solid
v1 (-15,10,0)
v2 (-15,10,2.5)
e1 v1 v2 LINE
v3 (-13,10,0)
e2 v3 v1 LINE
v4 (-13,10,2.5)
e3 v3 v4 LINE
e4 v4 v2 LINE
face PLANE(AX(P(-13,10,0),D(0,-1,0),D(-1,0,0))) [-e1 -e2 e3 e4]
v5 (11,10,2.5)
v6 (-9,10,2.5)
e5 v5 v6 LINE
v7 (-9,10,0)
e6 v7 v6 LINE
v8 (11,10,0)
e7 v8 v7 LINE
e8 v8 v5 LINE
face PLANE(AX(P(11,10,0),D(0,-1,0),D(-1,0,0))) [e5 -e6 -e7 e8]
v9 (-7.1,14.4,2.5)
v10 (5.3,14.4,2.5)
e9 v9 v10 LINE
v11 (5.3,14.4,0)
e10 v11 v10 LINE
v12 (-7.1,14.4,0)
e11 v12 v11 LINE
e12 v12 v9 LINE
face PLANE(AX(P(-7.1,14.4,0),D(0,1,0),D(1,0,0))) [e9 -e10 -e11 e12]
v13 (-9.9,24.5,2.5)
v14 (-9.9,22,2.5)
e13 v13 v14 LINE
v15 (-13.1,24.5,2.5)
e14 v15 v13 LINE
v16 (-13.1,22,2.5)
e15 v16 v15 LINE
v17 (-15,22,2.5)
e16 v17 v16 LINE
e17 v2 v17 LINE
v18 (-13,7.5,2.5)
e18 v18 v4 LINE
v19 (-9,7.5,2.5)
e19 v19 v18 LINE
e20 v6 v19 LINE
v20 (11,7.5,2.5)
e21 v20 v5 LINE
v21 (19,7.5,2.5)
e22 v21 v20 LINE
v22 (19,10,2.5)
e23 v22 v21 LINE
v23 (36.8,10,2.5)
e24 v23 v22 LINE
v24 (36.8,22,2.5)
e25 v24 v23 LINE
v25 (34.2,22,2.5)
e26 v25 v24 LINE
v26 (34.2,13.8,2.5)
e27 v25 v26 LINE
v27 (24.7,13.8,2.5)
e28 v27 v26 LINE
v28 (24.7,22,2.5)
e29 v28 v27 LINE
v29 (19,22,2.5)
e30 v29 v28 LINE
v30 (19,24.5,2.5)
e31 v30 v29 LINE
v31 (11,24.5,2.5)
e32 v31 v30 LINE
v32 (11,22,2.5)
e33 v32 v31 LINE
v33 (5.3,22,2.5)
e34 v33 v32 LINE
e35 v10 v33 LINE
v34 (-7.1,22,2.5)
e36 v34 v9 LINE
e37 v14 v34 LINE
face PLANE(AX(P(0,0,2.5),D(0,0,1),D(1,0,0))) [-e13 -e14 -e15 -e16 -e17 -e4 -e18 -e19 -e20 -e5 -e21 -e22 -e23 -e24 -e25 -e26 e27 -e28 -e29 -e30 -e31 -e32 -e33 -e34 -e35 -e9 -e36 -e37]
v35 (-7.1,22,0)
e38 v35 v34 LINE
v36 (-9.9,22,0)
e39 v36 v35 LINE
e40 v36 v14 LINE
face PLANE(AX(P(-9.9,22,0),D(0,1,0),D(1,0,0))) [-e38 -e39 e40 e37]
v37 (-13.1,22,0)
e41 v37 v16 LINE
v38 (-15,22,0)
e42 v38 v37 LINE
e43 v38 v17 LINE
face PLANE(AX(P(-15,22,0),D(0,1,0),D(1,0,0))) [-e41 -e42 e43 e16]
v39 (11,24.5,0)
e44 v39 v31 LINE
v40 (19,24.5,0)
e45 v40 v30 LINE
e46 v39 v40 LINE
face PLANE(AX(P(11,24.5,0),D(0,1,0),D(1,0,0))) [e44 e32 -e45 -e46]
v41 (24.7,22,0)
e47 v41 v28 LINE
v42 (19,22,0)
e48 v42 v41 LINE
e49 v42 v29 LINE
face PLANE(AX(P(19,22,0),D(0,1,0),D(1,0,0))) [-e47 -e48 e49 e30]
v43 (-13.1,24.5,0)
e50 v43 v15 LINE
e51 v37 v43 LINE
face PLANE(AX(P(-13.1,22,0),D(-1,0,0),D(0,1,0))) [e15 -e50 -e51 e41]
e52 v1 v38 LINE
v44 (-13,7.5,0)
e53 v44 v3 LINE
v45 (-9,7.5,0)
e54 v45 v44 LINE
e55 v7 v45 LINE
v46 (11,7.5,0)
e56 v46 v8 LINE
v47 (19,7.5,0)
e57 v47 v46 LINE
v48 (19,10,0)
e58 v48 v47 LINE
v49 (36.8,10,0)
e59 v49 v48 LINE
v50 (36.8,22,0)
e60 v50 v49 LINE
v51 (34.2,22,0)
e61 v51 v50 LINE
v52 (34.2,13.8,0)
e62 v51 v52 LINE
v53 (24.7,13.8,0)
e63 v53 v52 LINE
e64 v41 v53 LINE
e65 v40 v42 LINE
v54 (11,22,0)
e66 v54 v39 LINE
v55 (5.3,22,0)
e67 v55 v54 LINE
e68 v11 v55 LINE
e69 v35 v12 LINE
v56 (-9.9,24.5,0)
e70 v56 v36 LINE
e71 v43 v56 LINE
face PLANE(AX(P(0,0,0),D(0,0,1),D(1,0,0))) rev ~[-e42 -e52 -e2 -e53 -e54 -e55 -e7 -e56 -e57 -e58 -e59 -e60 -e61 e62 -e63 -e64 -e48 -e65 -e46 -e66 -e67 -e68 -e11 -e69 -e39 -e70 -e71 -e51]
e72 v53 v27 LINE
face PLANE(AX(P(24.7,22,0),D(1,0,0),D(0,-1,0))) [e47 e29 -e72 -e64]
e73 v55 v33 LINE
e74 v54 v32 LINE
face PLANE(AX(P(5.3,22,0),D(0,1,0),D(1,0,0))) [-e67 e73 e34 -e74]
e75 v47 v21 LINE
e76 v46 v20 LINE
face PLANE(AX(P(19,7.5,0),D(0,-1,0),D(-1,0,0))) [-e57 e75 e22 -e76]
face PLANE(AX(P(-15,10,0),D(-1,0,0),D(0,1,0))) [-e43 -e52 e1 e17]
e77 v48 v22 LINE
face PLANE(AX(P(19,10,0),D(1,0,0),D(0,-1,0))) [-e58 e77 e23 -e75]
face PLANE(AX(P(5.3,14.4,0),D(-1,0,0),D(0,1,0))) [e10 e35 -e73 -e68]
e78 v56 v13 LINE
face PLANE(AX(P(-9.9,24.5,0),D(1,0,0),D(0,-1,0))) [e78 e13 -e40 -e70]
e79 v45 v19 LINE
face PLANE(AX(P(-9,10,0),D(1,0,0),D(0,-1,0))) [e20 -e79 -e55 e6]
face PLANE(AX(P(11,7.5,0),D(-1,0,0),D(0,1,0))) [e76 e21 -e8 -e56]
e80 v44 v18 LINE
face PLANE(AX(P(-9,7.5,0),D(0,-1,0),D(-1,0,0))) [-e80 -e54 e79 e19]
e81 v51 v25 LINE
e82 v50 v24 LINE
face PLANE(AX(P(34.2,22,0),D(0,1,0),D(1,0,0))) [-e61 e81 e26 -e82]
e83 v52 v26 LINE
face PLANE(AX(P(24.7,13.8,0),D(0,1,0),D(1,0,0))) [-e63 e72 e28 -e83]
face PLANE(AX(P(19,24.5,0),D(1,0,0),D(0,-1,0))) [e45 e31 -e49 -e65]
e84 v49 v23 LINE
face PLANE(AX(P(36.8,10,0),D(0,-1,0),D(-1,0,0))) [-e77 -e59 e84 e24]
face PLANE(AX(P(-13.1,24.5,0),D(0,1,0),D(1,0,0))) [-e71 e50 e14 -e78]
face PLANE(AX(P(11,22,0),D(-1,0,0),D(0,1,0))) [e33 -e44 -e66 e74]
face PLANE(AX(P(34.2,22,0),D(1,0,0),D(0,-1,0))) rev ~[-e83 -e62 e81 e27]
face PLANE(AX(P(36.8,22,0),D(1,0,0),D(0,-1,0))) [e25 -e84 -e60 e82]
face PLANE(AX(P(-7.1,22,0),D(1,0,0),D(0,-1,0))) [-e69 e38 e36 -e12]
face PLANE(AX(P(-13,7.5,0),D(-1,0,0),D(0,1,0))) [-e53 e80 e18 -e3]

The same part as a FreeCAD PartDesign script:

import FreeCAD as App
import Part
import Sketcher
from FreeCAD import Vector

doc = App.newDocument("Part")
params = doc.addObject("Spreadsheet::Sheet", "Params")
for row, (alias, value) in enumerate([
    ("sketch1_width", "4 mm"),
    ("sketch1_width2", "20 mm"),
    ("sketch1_width3", "8 mm"),
    ("sketch1_height", "12 mm"),
    ("sketch1_width4", "17.8 mm"),
    ("pad1_length", "2.5 mm"),
], start=1):
    params.set(f"A{row}", alias)
    params.set(f"B{row}", "=" + value)
    params.setAlias(f"B{row}", alias)

body = doc.addObject("PartDesign::Body", "Body")

# Sketch on XY plane
sketch1 = body.newObject("Sketcher::SketchObject", "Sketch")
sketch1.AttachmentSupport = (doc.getObject("XY_Plane"), [""])
sketch1.MapMode = "FlatFace"
sketch1.addGeometry([
    Part.LineSegment(Vector(-15, 22, 0), Vector(-15, 10, 0)),  # 0
    Part.LineSegment(Vector(-15, 10, 0), Vector(-13, 10, 0)),  # 1
    Part.LineSegment(Vector(-13, 10, 0), Vector(-13, 7.5, 0)),  # 2
    Part.LineSegment(Vector(-13, 7.5, 0), Vector(-9, 7.5, 0)),  # 3
    Part.LineSegment(Vector(-9, 7.5, 0), Vector(-9, 10, 0)),  # 4
    Part.LineSegment(Vector(-9, 10, 0), Vector(11, 10, 0)),  # 5
    Part.LineSegment(Vector(11, 10, 0), Vector(11, 7.5, 0)),  # 6
    Part.LineSegment(Vector(11, 7.5, 0), Vector(19, 7.5, 0)),  # 7
    Part.LineSegment(Vector(19, 7.5, 0), Vector(19, 10, 0)),  # 8
    Part.LineSegment(Vector(19, 10, 0), Vector(36.8, 10, 0)),  # 9
    Part.LineSegment(Vector(36.8, 10, 0), Vector(36.8, 22, 0)),  # 10
    Part.LineSegment(Vector(36.8, 22, 0), Vector(34.2, 22, 0)),  # 11
    Part.LineSegment(Vector(34.2, 22, 0), Vector(34.2, 13.8, 0)),  # 12
    Part.LineSegment(Vector(34.2, 13.8, 0), Vector(24.7, 13.8, 0)),  # 13
    Part.LineSegment(Vector(24.7, 13.8, 0), Vector(24.7, 22, 0)),  # 14
    Part.LineSegment(Vector(24.7, 22, 0), Vector(19, 22, 0)),  # 15
    Part.LineSegment(Vector(19, 22, 0), Vector(19, 24.5, 0)),  # 16
    Part.LineSegment(Vector(19, 24.5, 0), Vector(11, 24.5, 0)),  # 17
    Part.LineSegment(Vector(11, 24.5, 0), Vector(11, 22, 0)),  # 18
    Part.LineSegment(Vector(11, 22, 0), Vector(5.3, 22, 0)),  # 19
    Part.LineSegment(Vector(5.3, 22, 0), Vector(5.3, 14.4, 0)),  # 20
    Part.LineSegment(Vector(5.3, 14.4, 0), Vector(-7.1, 14.4, 0)),  # 21
    Part.LineSegment(Vector(-7.1, 14.4, 0), Vector(-7.1, 22, 0)),  # 22
    Part.LineSegment(Vector(-7.1, 22, 0), Vector(-9.9, 22, 0)),  # 23
    Part.LineSegment(Vector(-9.9, 22, 0), Vector(-9.9, 24.5, 0)),  # 24
    Part.LineSegment(Vector(-9.9, 24.5, 0), Vector(-13.1, 24.5, 0)),  # 25
    Part.LineSegment(Vector(-13.1, 24.5, 0), Vector(-13.1, 22, 0)),  # 26
    Part.LineSegment(Vector(-13.1, 22, 0), Vector(-15, 22, 0)),  # 27
], False)
sketch1.addConstraint([
    Sketcher.Constraint("Coincident", 0, 2, 1, 1),
    Sketcher.Constraint("Coincident", 1, 2, 2, 1),
    Sketcher.Constraint("Coincident", 2, 2, 3, 1),
    Sketcher.Constraint("Coincident", 3, 2, 4, 1),
    Sketcher.Constraint("Coincident", 4, 2, 5, 1),
    Sketcher.Constraint("Coincident", 5, 2, 6, 1),
    Sketcher.Constraint("Coincident", 6, 2, 7, 1),
    Sketcher.Constraint("Coincident", 7, 2, 8, 1),
    Sketcher.Constraint("Coincident", 8, 2, 9, 1),
    Sketcher.Constraint("Coincident", 9, 2, 10, 1),
    Sketcher.Constraint("Coincident", 10, 2, 11, 1),
    Sketcher.Constraint("Coincident", 11, 2, 12, 1),
    Sketcher.Constraint("Coincident", 12, 2, 13, 1),
    Sketcher.Constraint("Coincident", 13, 2, 14, 1),
    Sketcher.Constraint("Coincident", 14, 2, 15, 1),
    Sketcher.Constraint("Coincident", 15, 2, 16, 1),
    Sketcher.Constraint("Coincident", 16, 2, 17, 1),
    Sketcher.Constraint("Coincident", 17, 2, 18, 1),
    Sketcher.Constraint("Coincident", 18, 2, 19, 1),
    Sketcher.Constraint("Coincident", 19, 2, 20, 1),
    Sketcher.Constraint("Coincident", 20, 2, 21, 1),
    Sketcher.Constraint("Coincident", 21, 2, 22, 1),
    Sketcher.Constraint("Coincident", 22, 2, 23, 1),
    Sketcher.Constraint("Coincident", 23, 2, 24, 1),
    Sketcher.Constraint("Coincident", 24, 2, 25, 1),
    Sketcher.Constraint("Coincident", 25, 2, 26, 1),
    Sketcher.Constraint("Coincident", 26, 2, 27, 1),
    Sketcher.Constraint("Coincident", 27, 2, 0, 1),
    Sketcher.Constraint("Vertical", 0),
    Sketcher.Constraint("Horizontal", 1),
    Sketcher.Constraint("Vertical", 2),
    Sketcher.Constraint("Horizontal", 3),
    Sketcher.Constraint("Vertical", 4),
    Sketcher.Constraint("Horizontal", 5),
    Sketcher.Constraint("Vertical", 6),
    Sketcher.Constraint("Horizontal", 7),
    Sketcher.Constraint("Vertical", 8),
    Sketcher.Constraint("Horizontal", 9),
    Sketcher.Constraint("Vertical", 10),
    Sketcher.Constraint("Horizontal", 11),
    Sketcher.Constraint("Vertical", 12),
    Sketcher.Constraint("Horizontal", 13),
    Sketcher.Constraint("Vertical", 14),
    Sketcher.Constraint("Horizontal", 15),
    Sketcher.Constraint("Vertical", 16),
    Sketcher.Constraint("Horizontal", 17),
    Sketcher.Constraint("Vertical", 18),
    Sketcher.Constraint("Horizontal", 19),
    Sketcher.Constraint("Vertical", 20),
    Sketcher.Constraint("Horizontal", 21),
    Sketcher.Constraint("Vertical", 22),
    Sketcher.Constraint("Horizontal", 23),
    Sketcher.Constraint("Vertical", 24),
    Sketcher.Constraint("Horizontal", 25),
    Sketcher.Constraint("Vertical", 26),
    Sketcher.Constraint("Horizontal", 27),
    Sketcher.Constraint("Horizontal", 1, 2, 4, 2),
    Sketcher.Constraint("Horizontal", 3, 2, 6, 2),
    Sketcher.Constraint("Horizontal", 5, 2, 8, 2),
    Sketcher.Constraint("Horizontal", 11, 2, 14, 2),
    Sketcher.Constraint("Horizontal", 15, 2, 18, 2),
    Sketcher.Constraint("Horizontal", 19, 2, 22, 2),
    Sketcher.Constraint("Horizontal", 17, 2, 24, 2),
    Sketcher.Constraint("Horizontal", 23, 2, 26, 2),
    Sketcher.Constraint("Vertical", 8, 2, 15, 2),
    Sketcher.Constraint("Vertical", 6, 2, 17, 2),
    Sketcher.Constraint("Equal", 15, 19),
    Sketcher.Constraint("Equal", 8, 16),
    Sketcher.Constraint("DistanceX", 3, 1, 3, 2, 4.0),
    Sketcher.Constraint("DistanceX", 5, 1, 5, 2, 20.0),
    Sketcher.Constraint("DistanceX", 7, 1, 7, 2, 8.0),
    Sketcher.Constraint("DistanceY", 0, 2, 0, 1, 12.0),
    Sketcher.Constraint("DistanceX", 9, 1, 9, 2, 17.8),
    Sketcher.Constraint("DistanceX", 11, 2, 11, 1, 2.6),
    Sketcher.Constraint("DistanceX", 15, 2, 15, 1, 5.7),
    Sketcher.Constraint("DistanceX", 21, 2, 21, 1, 12.4),
    Sketcher.Constraint("DistanceX", 23, 2, 23, 1, 2.8),
    Sketcher.Constraint("DistanceX", 25, 2, 25, 1, 3.2),
    Sketcher.Constraint("DistanceX", 27, 2, 27, 1, 1.9),
    Sketcher.Constraint("DistanceY", 2, 2, 2, 1, 2.5),
    Sketcher.Constraint("DistanceY", 12, 2, 12, 1, 8.2),
    Sketcher.Constraint("DistanceY", 20, 2, 20, 1, 7.6),
    Sketcher.Constraint("DistanceX", 0, 2, -1, 1, 15.0),
    Sketcher.Constraint("DistanceY", -1, 1, 0, 2, 10.0),
])
sketch1.setExpression("Constraints[68]", "Params.sketch1_width")
sketch1.setExpression("Constraints[69]", "Params.sketch1_width2")
sketch1.setExpression("Constraints[70]", "Params.sketch1_width3")
sketch1.setExpression("Constraints[71]", "Params.sketch1_height")
sketch1.setExpression("Constraints[72]", "Params.sketch1_width4")
pad1 = body.newObject("PartDesign::Pad", "Pad")
pad1.Profile = sketch1
pad1.setExpression("Length", "Params.pad1_length")

doc.recompute()
